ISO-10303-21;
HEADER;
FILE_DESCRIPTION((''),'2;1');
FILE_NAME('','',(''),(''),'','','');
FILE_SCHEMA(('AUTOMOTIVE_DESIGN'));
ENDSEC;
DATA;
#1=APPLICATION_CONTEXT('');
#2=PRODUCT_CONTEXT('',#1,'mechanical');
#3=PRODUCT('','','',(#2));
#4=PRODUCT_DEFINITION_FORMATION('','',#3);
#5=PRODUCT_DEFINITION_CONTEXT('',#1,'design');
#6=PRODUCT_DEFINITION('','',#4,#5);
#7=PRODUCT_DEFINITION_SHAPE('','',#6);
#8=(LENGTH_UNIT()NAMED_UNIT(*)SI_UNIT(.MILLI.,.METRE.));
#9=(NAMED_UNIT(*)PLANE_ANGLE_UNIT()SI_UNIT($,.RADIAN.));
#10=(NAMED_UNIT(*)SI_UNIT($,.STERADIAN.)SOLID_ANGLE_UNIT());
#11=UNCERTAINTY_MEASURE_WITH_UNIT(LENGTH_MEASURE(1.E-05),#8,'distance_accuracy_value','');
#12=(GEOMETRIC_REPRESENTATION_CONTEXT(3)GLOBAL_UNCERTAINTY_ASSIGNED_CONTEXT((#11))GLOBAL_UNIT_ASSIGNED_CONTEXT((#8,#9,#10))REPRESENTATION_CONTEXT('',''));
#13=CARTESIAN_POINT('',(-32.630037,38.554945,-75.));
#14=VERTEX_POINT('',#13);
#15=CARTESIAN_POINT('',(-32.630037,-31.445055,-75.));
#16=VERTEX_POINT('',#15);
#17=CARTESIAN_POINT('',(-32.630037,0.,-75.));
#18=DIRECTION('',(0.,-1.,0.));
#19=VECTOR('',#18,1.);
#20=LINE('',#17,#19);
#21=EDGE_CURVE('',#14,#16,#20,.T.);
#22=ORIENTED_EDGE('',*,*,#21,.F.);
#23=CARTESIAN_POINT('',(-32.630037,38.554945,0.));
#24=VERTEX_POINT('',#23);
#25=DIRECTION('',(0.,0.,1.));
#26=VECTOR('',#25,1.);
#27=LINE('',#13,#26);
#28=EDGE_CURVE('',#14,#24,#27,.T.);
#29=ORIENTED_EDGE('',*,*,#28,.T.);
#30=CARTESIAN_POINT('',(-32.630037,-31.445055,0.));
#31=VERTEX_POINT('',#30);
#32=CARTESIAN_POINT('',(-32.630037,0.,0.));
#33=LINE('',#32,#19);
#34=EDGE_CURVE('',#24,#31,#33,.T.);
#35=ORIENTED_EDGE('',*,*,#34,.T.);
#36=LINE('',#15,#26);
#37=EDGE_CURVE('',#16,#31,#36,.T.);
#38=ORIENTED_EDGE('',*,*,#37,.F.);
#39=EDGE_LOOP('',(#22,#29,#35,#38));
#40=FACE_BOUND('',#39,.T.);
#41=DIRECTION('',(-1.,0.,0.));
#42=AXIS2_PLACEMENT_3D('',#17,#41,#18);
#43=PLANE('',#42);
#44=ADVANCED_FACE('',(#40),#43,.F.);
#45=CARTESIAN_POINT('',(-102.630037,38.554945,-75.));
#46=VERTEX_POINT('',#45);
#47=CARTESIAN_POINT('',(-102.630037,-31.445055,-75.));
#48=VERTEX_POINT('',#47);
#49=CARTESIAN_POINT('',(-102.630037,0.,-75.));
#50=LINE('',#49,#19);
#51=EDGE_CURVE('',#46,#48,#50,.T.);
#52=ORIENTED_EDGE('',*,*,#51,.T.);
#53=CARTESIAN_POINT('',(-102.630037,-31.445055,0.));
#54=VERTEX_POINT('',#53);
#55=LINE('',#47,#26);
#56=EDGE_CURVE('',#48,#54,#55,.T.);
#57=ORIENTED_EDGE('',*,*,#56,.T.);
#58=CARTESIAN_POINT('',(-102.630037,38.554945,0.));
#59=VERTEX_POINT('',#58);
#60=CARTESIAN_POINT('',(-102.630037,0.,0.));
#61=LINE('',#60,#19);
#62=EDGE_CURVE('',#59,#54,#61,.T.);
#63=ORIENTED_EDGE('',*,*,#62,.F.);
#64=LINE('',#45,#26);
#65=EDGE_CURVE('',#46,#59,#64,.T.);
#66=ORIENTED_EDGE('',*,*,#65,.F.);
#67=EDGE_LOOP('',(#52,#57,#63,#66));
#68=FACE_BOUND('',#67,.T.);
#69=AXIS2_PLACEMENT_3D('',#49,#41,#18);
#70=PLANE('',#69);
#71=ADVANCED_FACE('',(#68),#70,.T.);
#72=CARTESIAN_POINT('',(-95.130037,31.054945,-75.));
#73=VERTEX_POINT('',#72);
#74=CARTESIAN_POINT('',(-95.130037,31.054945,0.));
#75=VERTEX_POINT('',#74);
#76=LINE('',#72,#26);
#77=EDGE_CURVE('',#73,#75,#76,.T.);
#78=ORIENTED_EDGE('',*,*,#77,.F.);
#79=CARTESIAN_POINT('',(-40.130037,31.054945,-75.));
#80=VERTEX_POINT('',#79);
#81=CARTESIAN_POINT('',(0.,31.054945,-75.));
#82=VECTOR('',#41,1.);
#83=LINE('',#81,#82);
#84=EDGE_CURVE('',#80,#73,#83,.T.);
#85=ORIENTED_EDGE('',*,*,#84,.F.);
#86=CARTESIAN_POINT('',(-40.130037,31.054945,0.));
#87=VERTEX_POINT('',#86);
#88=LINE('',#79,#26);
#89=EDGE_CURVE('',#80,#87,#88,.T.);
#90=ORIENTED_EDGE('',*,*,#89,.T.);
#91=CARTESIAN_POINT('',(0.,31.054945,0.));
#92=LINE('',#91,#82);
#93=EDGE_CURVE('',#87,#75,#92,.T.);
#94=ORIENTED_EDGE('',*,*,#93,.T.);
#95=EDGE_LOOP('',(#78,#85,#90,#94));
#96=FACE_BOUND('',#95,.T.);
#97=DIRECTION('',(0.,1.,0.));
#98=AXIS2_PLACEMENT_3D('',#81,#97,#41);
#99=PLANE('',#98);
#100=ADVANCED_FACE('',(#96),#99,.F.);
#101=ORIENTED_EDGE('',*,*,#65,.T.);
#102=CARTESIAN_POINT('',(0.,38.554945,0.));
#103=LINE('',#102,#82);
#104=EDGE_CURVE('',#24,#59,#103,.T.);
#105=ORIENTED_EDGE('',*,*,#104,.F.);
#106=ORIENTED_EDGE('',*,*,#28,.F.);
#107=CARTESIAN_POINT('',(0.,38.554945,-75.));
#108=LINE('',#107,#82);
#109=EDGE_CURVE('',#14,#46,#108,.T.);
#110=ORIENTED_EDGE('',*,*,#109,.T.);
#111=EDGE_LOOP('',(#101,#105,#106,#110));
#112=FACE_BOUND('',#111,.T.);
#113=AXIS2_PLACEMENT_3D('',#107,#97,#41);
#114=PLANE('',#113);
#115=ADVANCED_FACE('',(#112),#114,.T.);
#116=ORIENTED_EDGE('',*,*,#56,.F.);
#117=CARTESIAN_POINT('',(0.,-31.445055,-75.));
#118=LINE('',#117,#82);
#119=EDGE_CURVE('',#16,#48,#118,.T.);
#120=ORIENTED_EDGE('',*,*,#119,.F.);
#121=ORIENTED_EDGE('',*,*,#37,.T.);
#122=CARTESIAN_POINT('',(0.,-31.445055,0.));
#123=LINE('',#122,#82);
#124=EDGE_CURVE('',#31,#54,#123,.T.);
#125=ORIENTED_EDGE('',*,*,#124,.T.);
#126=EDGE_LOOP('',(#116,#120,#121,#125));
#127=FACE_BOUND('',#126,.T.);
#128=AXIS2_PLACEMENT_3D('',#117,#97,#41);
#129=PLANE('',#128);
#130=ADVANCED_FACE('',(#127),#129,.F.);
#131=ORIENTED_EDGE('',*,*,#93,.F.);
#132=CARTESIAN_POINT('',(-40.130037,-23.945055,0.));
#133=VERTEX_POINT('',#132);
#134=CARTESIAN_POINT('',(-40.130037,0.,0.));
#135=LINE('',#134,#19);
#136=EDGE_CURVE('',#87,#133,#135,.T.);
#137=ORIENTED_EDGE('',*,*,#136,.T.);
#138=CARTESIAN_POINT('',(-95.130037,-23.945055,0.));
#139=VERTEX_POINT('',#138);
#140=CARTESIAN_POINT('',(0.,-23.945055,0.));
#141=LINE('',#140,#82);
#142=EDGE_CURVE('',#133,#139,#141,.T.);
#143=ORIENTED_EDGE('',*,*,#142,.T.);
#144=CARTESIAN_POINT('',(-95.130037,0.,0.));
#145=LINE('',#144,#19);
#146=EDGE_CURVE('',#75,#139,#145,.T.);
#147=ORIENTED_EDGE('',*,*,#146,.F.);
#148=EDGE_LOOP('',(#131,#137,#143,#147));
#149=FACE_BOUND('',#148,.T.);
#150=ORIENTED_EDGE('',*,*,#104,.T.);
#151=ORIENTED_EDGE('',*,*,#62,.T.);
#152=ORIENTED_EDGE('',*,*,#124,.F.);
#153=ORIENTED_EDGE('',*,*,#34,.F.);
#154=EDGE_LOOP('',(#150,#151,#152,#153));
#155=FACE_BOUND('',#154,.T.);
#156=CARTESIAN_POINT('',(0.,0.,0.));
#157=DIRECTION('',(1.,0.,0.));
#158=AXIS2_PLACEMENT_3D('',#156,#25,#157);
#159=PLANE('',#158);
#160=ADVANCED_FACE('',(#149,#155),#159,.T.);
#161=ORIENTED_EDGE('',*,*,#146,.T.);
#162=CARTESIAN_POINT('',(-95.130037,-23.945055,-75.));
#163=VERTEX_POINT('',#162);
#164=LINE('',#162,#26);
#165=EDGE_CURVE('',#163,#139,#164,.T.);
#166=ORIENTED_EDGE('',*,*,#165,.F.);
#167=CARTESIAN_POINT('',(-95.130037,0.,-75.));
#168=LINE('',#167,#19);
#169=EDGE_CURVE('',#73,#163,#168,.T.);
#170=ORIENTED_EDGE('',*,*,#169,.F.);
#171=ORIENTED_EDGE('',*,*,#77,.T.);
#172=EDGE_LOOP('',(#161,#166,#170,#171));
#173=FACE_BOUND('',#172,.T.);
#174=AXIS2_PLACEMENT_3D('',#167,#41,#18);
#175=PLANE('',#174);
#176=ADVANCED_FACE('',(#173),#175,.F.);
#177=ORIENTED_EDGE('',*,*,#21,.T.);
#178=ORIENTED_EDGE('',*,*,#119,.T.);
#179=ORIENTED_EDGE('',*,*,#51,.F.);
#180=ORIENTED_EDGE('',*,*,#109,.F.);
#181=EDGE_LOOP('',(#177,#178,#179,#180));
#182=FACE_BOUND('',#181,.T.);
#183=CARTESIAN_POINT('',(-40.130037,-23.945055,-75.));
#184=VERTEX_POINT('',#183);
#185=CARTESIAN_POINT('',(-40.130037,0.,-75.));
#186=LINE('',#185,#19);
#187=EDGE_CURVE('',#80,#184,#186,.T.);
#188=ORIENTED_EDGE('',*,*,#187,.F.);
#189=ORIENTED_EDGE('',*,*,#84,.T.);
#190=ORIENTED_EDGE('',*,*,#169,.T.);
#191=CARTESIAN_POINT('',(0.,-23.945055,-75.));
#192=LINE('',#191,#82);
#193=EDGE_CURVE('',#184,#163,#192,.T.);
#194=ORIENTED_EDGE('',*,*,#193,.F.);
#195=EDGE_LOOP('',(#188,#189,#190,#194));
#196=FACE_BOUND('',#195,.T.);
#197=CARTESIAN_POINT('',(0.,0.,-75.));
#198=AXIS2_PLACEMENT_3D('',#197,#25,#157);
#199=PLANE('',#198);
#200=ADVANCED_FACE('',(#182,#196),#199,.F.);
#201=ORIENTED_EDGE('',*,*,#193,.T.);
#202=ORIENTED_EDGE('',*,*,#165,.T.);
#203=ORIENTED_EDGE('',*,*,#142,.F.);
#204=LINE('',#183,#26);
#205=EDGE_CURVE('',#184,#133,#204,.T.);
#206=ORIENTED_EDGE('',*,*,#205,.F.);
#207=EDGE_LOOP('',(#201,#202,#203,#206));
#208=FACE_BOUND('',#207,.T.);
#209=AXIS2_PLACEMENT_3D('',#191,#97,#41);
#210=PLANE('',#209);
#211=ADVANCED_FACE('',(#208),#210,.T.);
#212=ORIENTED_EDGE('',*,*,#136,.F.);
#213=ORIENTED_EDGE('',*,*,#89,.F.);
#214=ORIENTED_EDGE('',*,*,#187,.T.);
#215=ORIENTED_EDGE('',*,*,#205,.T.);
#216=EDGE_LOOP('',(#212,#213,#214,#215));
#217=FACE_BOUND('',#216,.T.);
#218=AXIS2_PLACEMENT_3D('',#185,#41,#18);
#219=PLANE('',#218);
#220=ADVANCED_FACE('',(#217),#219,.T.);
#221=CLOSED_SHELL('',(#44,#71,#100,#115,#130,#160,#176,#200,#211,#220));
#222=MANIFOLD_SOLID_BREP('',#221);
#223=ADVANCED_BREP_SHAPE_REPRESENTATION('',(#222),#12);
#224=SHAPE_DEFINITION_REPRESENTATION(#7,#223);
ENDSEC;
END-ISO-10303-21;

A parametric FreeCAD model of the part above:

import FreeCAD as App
import Part
import Sketcher
from FreeCAD import Vector
Q = App.Units.Quantity


def add_polygon(sketch, points):
    """Adds a closed chain of lines whose ends are joined by coincident constraints."""
    first, n = sketch.GeometryCount, len(points)
    for a, b in zip(points, points[1:] + points[:1]):
        sketch.addGeometry(Part.LineSegment(App.Vector(*a, 0), App.Vector(*b, 0)), False)
    for i in range(n):
        sketch.addConstraint(Sketcher.Constraint("Coincident", first + i, 2, first + (i + 1) % n, 1))

doc = App.newDocument("Part")
body = doc.addObject("PartDesign::Body", "Body")

# Sketch on XY plane
sketch1 = body.newObject("Sketcher::SketchObject", "Sketch")
sketch1.AttachmentSupport = (doc.getObject("XY_Plane"), [""])
sketch1.MapMode = "FlatFace"
add_polygon(sketch1, [(-102.630037, 38.554945), (-102.630037, -31.445055), (-32.630037, -31.445055), (-32.630037, 38.554945)])  # lines 0-3
add_polygon(sketch1, [(-40.130037, -23.945055), (-95.130037, -23.945055), (-95.130037, 31.054945), (-40.130037, 31.054945)])  # lines 4-7
sketch1.addConstraint([
    Sketcher.Constraint("Vertical", 0),
    Sketcher.Constraint("Horizontal", 1),
    Sketcher.Constraint("Vertical", 2),
    Sketcher.Constraint("Horizontal", 3),
    Sketcher.Constraint("Horizontal", 4),
    Sketcher.Constraint("Vertical", 5),
    Sketcher.Constraint("Horizontal", 6),
    Sketcher.Constraint("Vertical", 7),
    Sketcher.Constraint("Equal", 3, 0),
    Sketcher.Constraint("Equal", 6, 5),
    Sketcher.Constraint("DistanceX", 1, 1, 1, 2, Q("70 mm")),
    Sketcher.Constraint("DistanceX", 4, 2, 4, 1, Q("55 mm")),
    Sketcher.Constraint("DistanceX", 0, 2, 4, 2, Q("7.5 mm")),
    Sketcher.Constraint("DistanceY", 0, 2, 4, 2, Q("7.5 mm")),
    Sketcher.Constraint("DistanceX", 0, 2, -1, 1, Q("102.630037 mm")),
    Sketcher.Constraint("DistanceY", 0, 2, -1, 1, Q("31.445055 mm")),
])
pad1 = body.newObject("PartDesign::Pad", "Pad")
pad1.Profile = sketch1
pad1.Length = 75
pad1.Reversed = True

doc.recompute()
